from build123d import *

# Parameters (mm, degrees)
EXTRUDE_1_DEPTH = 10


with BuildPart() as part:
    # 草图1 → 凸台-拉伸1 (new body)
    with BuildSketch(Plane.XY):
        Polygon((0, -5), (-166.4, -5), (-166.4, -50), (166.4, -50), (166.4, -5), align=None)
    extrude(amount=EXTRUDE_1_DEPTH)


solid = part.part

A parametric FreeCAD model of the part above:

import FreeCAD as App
import Part
import Sketcher

doc = App.newDocument("Part")
body = doc.addObject("PartDesign::Body", "Body")

# Sketch on XY plane
sketch1 = body.newObject("Sketcher::SketchObject", "Sketch")
sketch1.AttachmentSupport = (doc.getObject("XY_Plane"), [""])
sketch1.MapMode = "FlatFace"
sketch1.addGeometry(Part.LineSegment(App.Vector(-166, -5, 0), App.Vector(-166, -50, 0)), False)
sketch1.addGeometry(Part.LineSegment(App.Vector(-166, -50, 0), App.Vector(166, -50, 0)), False)
sketch1.addGeometry(Part.LineSegment(App.Vector(166, -50, 0), App.Vector(166, -5, 0)), False)
sketch1.addGeometry(Part.LineSegment(App.Vector(166, -5, 0), App.Vector(-166, -5, 0)), False)
sketch1.addConstraint(Sketcher.Constraint("Coincident", 0, 2, 1, 1))
sketch1.addConstraint(Sketcher.Constraint("Coincident", 1, 2, 2, 1))
sketch1.addConstraint(Sketcher.Constraint("Coincident", 2, 2, 3, 1))
sketch1.addConstraint(Sketcher.Constraint("Coincident", 3, 2, 0, 1))
sketch1.addConstraint(Sketcher.Constraint("Vertical", 0))
sketch1.addConstraint(Sketcher.Constraint("Horizontal", 1))
sketch1.addConstraint(Sketcher.Constraint("Vertical", 2))
sketch1.addConstraint(Sketcher.Constraint("Horizontal", 3))
sketch1.addConstraint(Sketcher.Constraint("DistanceY", 0, 2, 0, 1, 45.0))
sketch1.addConstraint(Sketcher.Constraint("DistanceX", 1, 1, 1, 2, 332.8))
sketch1.addConstraint(Sketcher.Constraint("DistanceY", 0, 2, -1, 1, 50.0))
sketch1.addConstraint(Sketcher.Constraint("DistanceX", 0, 2, -1, 1, 166.4))
pad1 = body.newObject("PartDesign::Pad", "Pad")
pad1.Profile = sketch1
pad1.Length = 10

doc.recompute()
